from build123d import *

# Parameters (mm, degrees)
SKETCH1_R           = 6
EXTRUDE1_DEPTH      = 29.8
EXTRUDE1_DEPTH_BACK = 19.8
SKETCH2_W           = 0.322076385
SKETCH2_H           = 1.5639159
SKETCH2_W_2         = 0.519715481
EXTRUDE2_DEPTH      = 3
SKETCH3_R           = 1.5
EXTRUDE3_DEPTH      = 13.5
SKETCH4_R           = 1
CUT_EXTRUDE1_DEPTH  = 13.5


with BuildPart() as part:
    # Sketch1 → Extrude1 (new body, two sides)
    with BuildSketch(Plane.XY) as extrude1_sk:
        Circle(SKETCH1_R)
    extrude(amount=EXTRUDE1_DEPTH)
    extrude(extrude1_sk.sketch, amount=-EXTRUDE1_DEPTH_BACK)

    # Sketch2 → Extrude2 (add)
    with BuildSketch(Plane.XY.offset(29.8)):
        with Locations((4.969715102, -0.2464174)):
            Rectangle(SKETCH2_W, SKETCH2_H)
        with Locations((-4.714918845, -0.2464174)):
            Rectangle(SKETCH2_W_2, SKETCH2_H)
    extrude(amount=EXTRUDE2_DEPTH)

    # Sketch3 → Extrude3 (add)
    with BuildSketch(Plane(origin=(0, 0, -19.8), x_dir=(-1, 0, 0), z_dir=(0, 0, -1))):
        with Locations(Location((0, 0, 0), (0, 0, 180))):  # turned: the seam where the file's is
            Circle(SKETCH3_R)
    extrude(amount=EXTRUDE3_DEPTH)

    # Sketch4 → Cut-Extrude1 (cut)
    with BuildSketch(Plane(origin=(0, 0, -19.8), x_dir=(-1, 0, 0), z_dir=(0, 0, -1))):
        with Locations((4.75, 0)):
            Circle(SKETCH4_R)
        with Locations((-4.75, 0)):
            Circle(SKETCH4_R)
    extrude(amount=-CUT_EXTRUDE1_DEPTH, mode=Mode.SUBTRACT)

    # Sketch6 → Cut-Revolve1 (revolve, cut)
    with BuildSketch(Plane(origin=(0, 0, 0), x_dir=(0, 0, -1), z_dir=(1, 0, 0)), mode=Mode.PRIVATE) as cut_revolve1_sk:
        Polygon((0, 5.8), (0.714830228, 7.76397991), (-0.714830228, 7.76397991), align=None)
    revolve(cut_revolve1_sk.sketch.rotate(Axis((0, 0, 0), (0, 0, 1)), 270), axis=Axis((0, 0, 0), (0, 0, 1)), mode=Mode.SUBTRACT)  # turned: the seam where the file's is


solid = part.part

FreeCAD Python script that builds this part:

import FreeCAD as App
import Part
import Sketcher

V = App.Vector
Q = App.Units.Quantity


def add_polygon(sketch, points):
    """Adds a closed chain of lines whose ends are joined by coincident constraints."""
    first, n = sketch.GeometryCount, len(points)
    for a, b in zip(points, points[1:] + points[:1]):
        sketch.addGeometry(Part.LineSegment(App.Vector(*a, 0), App.Vector(*b, 0)), False)
    for i in range(n):
        sketch.addConstraint(Sketcher.Constraint("Coincident", first + i, 2, first + (i + 1) % n, 1))

doc = App.newDocument("Part")
body = doc.addObject("PartDesign::Body", "Body")

# Sketch on XY plane
sketch1 = body.newObject("Sketcher::SketchObject", "Sketch")
sketch1.AttachmentSupport = (doc.getObject("XY_Plane"), [""])
sketch1.MapMode = "FlatFace"
sketch1.addGeometry(Part.Circle(V(0, 0, 0), V(0, 0, 1), 6), False)
sketch1.addConstraint(Sketcher.Constraint("Coincident", 0, 3, -1, 1))
sketch1.addConstraint(Sketcher.Constraint("Diameter", 0, Q("12 mm")))
pad1 = body.newObject("PartDesign::Pad", "Pad")
pad1.Profile = sketch1
pad1.Type = "TwoLengths"
pad1.Length = 29.8
pad1.Length2 = 19.8

# Sketch on XY plane
sketch2 = body.newObject("Sketcher::SketchObject", "Sketch001")
sketch2.AttachmentSupport = (doc.getObject("XY_Plane"), [""])
sketch2.MapMode = "FlatFace"
sketch2.AttachmentOffset = App.Placement(V(0, 0, 29.8), App.Rotation())
add_polygon(sketch2, [(4.808677, 0.535541), (4.808677, -1.028375), (5.130753, -1.028375), (5.130753, 0.535541)])  # lines 0-3
add_polygon(sketch2, [(-4.974777, 0.535541), (-4.974777, -1.028375), (-4.455061, -1.028375), (-4.455061, 0.535541)])  # lines 4-7
sketch2.addConstraint(Sketcher.Constraint("Vertical", 0))
sketch2.addConstraint(Sketcher.Constraint("Horizontal", 1))
sketch2.addConstraint(Sketcher.Constraint("Vertical", 2))
sketch2.addConstraint(Sketcher.Constraint("Horizontal", 3))
sketch2.addConstraint(Sketcher.Constraint("Vertical", 4))
sketch2.addConstraint(Sketcher.Constraint("Horizontal", 5))
sketch2.addConstraint(Sketcher.Constraint("Vertical", 6))
sketch2.addConstraint(Sketcher.Constraint("Horizontal", 7))
sketch2.addConstraint(Sketcher.Constraint("Horizontal", 1, 2, 4, 2))
sketch2.addConstraint(Sketcher.Constraint("Horizontal", 3, 2, 6, 2))
sketch2.addConstraint(Sketcher.Constraint("DistanceX", 1, 1, 1, 2, Q("0.322076 mm")))
sketch2.addConstraint(Sketcher.Constraint("DistanceX", 5, 1, 5, 2, Q("0.519715 mm")))
sketch2.addConstraint(Sketcher.Constraint("DistanceY", 0, 2, 0, 1, Q("1.563916 mm")))
sketch2.addConstraint(Sketcher.Constraint("DistanceY", -1, 1, 2, 2, Q("0.535541 mm")))
sketch2.addConstraint(Sketcher.Constraint("DistanceX", 5, 2, -1, 1, Q("4.455061 mm")))
sketch2.addConstraint(Sketcher.Constraint("DistanceX", 4, 2, 1, 2, Q("10.10553 mm")))
pad2 = body.newObject("PartDesign::Pad", "Pad001")
pad2.Profile = sketch2
pad2.Length = 3

# Sketch on XY plane
sketch3 = body.newObject("Sketcher::SketchObject", "Sketch002")
sketch3.AttachmentSupport = (doc.getObject("XY_Plane"), [""])
sketch3.MapMode = "FlatFace"
sketch3.AttachmentOffset = App.Placement(V(0, 0, -19.8), App.Rotation())
sketch3.addGeometry(Part.Circle(V(0, 0, 0), V(0, 0, 1), 1.5), False)
sketch3.addConstraint(Sketcher.Constraint("Coincident", 0, 3, -1, 1))
sketch3.addConstraint(Sketcher.Constraint("Diameter", 0, Q("3 mm")))
pad3 = body.newObject("PartDesign::Pad", "Pad002")
pad3.Profile = sketch3
pad3.Length = 13.5
pad3.Reversed = True

# Sketch on XY plane
sketch4 = body.newObject("Sketcher::SketchObject", "Sketch003")
sketch4.AttachmentSupport = (doc.getObject("XY_Plane"), [""])
sketch4.MapMode = "FlatFace"
sketch4.AttachmentOffset = App.Placement(V(0, 0, -19.8), App.Rotation())
sketch4.addGeometry(Part.Circle(V(-4.75, 0, 0), V(0, 0, 1), 1), False)
sketch4.addGeometry(Part.Circle(V(4.75, 0, 0), V(0, 0, 1), 1), False)
sketch4.addConstraint(Sketcher.Constraint("Equal", 0, 1))
sketch4.addConstraint(Sketcher.Constraint("Symmetric", 0, 3, 1, 3, -1, 1))
sketch4.addConstraint(Sketcher.Constraint("PointOnObject", 0, 3, -1))
sketch4.addConstraint(Sketcher.Constraint("Diameter", 0, Q("2 mm")))
sketch4.addConstraint(Sketcher.Constraint("DistanceX", 0, 3, 1, 3, Q("9.5 mm")))
pocket1 = body.newObject("PartDesign::Pocket", "Pocket")
pocket1.Profile = sketch4
pocket1.Length = 13.5
pocket1.Reversed = True

# Sketch on YZ plane
sketch5 = body.newObject("Sketcher::SketchObject", "Sketch004")
sketch5.AttachmentSupport = (doc.getObject("YZ_Plane"), [""])
sketch5.MapMode = "FlatFace"
add_polygon(sketch5, [(5.8, 0), (7.76398, -0.71483), (7.76398, 0.71483)])  # lines 0-2
sketch5.addConstraint(Sketcher.Constraint("Vertical", 1))
sketch5.addConstraint(Sketcher.Constraint("PointOnObject", 2, 2, -1))
sketch5.addConstraint(Sketcher.Constraint("Equal", 0, 2))
sketch5.addConstraint(Sketcher.Constraint("Angle", 0, Q("-20 deg")))
sketch5.addConstraint(Sketcher.Constraint("DistanceX", -1, 1, 2, 2, Q("5.8 mm")))
sketch5.addConstraint(Sketcher.Constraint("DistanceY", 1, 1, 1, 2, Q("1.42966 mm")))
groove = body.newObject("PartDesign::Groove", "Groove")
groove.Profile = sketch5
groove.ReferenceAxis = (sketch5, ["V_Axis"])
groove.Angle = 360

doc.recompute()
